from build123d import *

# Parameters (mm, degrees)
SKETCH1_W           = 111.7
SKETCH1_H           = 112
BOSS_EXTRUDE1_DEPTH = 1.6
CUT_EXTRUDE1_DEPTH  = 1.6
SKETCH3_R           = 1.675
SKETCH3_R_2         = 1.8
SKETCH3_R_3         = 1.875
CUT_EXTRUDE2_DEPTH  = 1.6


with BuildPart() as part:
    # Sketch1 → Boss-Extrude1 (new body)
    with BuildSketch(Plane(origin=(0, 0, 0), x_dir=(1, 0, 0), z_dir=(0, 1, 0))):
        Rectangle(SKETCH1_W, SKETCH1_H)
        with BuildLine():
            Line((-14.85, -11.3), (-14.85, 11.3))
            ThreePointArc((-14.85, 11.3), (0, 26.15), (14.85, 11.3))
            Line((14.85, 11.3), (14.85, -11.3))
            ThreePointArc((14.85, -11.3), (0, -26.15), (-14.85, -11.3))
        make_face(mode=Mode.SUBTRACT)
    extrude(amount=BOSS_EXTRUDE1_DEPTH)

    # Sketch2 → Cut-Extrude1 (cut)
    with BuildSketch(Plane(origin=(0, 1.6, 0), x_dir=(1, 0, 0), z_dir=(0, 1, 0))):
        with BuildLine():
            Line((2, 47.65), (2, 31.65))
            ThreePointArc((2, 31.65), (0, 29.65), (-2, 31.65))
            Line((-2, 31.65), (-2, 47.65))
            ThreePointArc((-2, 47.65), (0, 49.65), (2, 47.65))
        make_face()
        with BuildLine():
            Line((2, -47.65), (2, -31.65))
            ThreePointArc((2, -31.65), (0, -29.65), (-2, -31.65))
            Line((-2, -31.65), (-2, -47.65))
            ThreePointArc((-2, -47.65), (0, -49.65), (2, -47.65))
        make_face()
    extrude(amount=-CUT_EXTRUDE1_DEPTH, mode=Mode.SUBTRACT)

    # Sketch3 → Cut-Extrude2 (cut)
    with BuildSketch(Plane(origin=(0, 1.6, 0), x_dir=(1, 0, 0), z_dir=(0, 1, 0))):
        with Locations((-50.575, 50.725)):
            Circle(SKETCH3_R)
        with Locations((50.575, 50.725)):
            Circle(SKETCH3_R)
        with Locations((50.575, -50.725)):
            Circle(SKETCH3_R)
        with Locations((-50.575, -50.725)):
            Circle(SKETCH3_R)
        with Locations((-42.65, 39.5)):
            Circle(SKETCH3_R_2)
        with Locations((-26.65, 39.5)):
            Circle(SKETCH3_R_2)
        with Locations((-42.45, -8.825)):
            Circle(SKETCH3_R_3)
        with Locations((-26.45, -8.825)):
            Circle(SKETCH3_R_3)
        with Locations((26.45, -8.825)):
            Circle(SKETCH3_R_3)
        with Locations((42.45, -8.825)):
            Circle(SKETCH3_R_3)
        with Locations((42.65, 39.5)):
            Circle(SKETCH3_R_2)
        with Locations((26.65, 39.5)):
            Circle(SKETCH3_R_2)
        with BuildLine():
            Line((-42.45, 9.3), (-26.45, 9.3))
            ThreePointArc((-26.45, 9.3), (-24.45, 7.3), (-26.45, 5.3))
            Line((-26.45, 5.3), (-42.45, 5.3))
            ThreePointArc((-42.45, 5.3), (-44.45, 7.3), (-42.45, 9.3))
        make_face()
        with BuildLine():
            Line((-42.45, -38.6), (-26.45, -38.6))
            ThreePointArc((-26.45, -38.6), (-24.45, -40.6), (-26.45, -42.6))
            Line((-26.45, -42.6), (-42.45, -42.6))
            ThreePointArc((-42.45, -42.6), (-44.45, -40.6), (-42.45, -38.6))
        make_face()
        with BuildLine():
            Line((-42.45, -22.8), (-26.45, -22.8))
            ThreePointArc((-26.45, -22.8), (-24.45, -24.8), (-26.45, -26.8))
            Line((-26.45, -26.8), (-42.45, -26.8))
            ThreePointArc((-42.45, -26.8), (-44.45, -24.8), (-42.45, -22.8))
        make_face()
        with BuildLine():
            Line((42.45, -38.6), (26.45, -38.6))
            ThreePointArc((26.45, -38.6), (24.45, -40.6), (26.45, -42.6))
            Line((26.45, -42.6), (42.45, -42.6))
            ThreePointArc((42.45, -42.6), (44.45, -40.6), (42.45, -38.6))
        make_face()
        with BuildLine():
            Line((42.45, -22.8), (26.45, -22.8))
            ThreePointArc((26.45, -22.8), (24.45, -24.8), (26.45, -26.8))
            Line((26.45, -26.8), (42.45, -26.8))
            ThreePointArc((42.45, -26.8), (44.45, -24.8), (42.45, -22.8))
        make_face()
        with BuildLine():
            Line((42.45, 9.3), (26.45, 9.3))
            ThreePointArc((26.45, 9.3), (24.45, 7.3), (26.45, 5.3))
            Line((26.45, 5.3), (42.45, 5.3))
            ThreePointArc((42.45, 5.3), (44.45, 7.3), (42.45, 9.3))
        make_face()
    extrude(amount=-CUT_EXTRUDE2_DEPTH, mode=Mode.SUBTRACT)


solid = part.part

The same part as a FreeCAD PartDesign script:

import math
import FreeCAD as App
import Part
import Sketcher
from FreeCAD import Vector


def add_polygon(sketch, points):
    """Adds a closed chain of lines whose ends are joined by coincident constraints."""
    first, n = sketch.GeometryCount, len(points)
    for a, b in zip(points, points[1:] + points[:1]):
        sketch.addGeometry(Part.LineSegment(App.Vector(*a, 0), App.Vector(*b, 0)), False)
    for i in range(n):
        sketch.addConstraint(Sketcher.Constraint("Coincident", first + i, 2, first + (i + 1) % n, 1))

doc = App.newDocument("Part")
body = doc.addObject("PartDesign::Body", "Body")

# Sketch on XZ plane
sketch1 = body.newObject("Sketcher::SketchObject", "Sketch")
sketch1.AttachmentSupport = (doc.getObject("XZ_Plane"), [""])
sketch1.MapMode = "FlatFace"
add_polygon(sketch1, [(-56, -56), (-56, 56), (56, 56), (56, -56)])  # lines 0-3
sketch1.addGeometry(Part.ArcOfCircle(Part.Circle(Vector(0, 11, 0), Vector(0, 0, 1), 15), math.radians(0), math.radians(180)), False)  # 4
sketch1.addGeometry(Part.LineSegment(Vector(-15, 11, 0), Vector(-15, -11, 0)), False)  # 5
sketch1.addGeometry(Part.ArcOfCircle(Part.Circle(Vector(0, -11, 0), Vector(0, 0, 1), 15), math.radians(180), math.radians(360)), False)  # 6
sketch1.addGeometry(Part.LineSegment(Vector(15, -11, 0), Vector(15, 11, 0)), False)  # 7
sketch1.addConstraint(Sketcher.Constraint("Tangent", 4, 2, 5, 1))
sketch1.addConstraint(Sketcher.Constraint("Tangent", 5, 2, 6, 1))
sketch1.addConstraint(Sketcher.Constraint("Tangent", 6, 2, 7, 1))
sketch1.addConstraint(Sketcher.Constraint("Tangent", 7, 2, 4, 1))
sketch1.addConstraint(Sketcher.Constraint("Vertical", 0))
sketch1.addConstraint(Sketcher.Constraint("Horizontal", 1))
sketch1.addConstraint(Sketcher.Constraint("Vertical", 2))
sketch1.addConstraint(Sketcher.Constraint("Horizontal", 3))
sketch1.addConstraint(Sketcher.Constraint("Vertical", 5))
sketch1.addConstraint(Sketcher.Constraint("Vertical", 7))
sketch1.addConstraint(Sketcher.Constraint("Symmetric", 4, 3, 6, 3, -1, 1))
sketch1.addConstraint(Sketcher.Constraint("Symmetric", 0, 2, 2, 2, -1, 1))
sketch1.addConstraint(Sketcher.Constraint("DistanceY", 0, 1, 0, 2, 112.0))
sketch1.addConstraint(Sketcher.Constraint("Radius", 4, 14.85))
sketch1.addConstraint(Sketcher.Constraint("DistanceX", 1, 1, 1, 2, 111.7))
sketch1.addConstraint(Sketcher.Constraint("DistanceY", 5, 2, 5, 1, 22.6))
pad1 = body.newObject("PartDesign::Pad", "Pad")
pad1.Profile = sketch1
pad1.Length = 1.6
pad1.Reversed = True

# Sketch on XZ plane
sketch2 = body.newObject("Sketcher::SketchObject", "Sketch001")
sketch2.AttachmentSupport = (doc.getObject("XZ_Plane"), [""])
sketch2.MapMode = "FlatFace"
sketch2.AttachmentOffset = App.Placement(Vector(0, 0, -1.6), App.Rotation())
sketch2.addGeometry(Part.LineSegment(Vector(2, -31.6, 0), Vector(2, -47.6, 0)), False)
sketch2.addGeometry(Part.ArcOfCircle(Part.Circle(Vector(0, -47.6, 0), Vector(0, 0, 1), 2), math.radians(180), math.radians(360)), False)
sketch2.addGeometry(Part.LineSegment(Vector(-2, -47.6, 0), Vector(-2, -31.6, 0)), False)
sketch2.addGeometry(Part.ArcOfCircle(Part.Circle(Vector(0, -31.6, 0), Vector(0, 0, 1), 2), math.radians(0), math.radians(180)), False)
sketch2.addGeometry(Part.LineSegment(Vector(2, 47.6, 0), Vector(2, 31.6, 0)), False)
sketch2.addGeometry(Part.ArcOfCircle(Part.Circle(Vector(0, 31.6, 0), Vector(0, 0, 1), 2), math.radians(180), math.radians(360)), False)
sketch2.addGeometry(Part.LineSegment(Vector(-2, 31.6, 0), Vector(-2, 47.6, 0)), False)
sketch2.addGeometry(Part.ArcOfCircle(Part.Circle(Vector(0, 47.6, 0), Vector(0, 0, 1), 2), math.radians(0), math.radians(180)), False)
sketch2.addConstraint(Sketcher.Constraint("Tangent", 0, 2, 1, 2))
sketch2.addConstraint(Sketcher.Constraint("Tangent", 1, 1, 2, 1))
sketch2.addConstraint(Sketcher.Constraint("Tangent", 2, 2, 3, 2))
sketch2.addConstraint(Sketcher.Constraint("Tangent", 3, 1, 0, 1))
sketch2.addConstraint(Sketcher.Constraint("Tangent", 4, 2, 5, 2))
sketch2.addConstraint(Sketcher.Constraint("Tangent", 5, 1, 6, 1))
sketch2.addConstraint(Sketcher.Constraint("Tangent", 6, 2, 7, 2))
sketch2.addConstraint(Sketcher.Constraint("Tangent", 7, 1, 4, 1))
sketch2.addConstraint(Sketcher.Constraint("Vertical", 0))
sketch2.addConstraint(Sketcher.Constraint("Vertical", 2))
sketch2.addConstraint(Sketcher.Constraint("Vertical", 4))
sketch2.addConstraint(Sketcher.Constraint("Vertical", 6))
sketch2.addConstraint(Sketcher.Constraint("Equal", 3, 5))
sketch2.addConstraint(Sketcher.Constraint("Symmetric", 3, 3, 5, 3, -1, 1))
sketch2.addConstraint(Sketcher.Constraint("Symmetric", 1, 3, 7, 3, -1))
sketch2.addConstraint(Sketcher.Constraint("Radius", 1, 2.0))
sketch2.addConstraint(Sketcher.Constraint("DistanceY", 0, 2, 0, 1, 16.0))
sketch2.addConstraint(Sketcher.Constraint("DistanceY", 3, 3, 5, 3, 63.3))
pocket1 = body.newObject("PartDesign::Pocket", "Pocket")
pocket1.Profile = sketch2
pocket1.Length = 1.6
pocket1.Reversed = True

# Sketch on XZ plane
sketch3 = body.newObject("Sketcher::SketchObject", "Sketch002")
sketch3.AttachmentSupport = (doc.getObject("XZ_Plane"), [""])
sketch3.MapMode = "FlatFace"
sketch3.AttachmentOffset = App.Placement(Vector(0, 0, -1.6), App.Rotation())
sketch3.addGeometry(Part.Circle(Vector(-50.6, -50.7, 0), Vector(0, 0, 1), 1.7), False)
sketch3.addGeometry(Part.Circle(Vector(50.6, -50.7, 0), Vector(0, 0, 1), 1.7), False)
sketch3.addGeometry(Part.Circle(Vector(50.6, 50.7, 0), Vector(0, 0, 1), 1.7), False)
sketch3.addGeometry(Part.Circle(Vector(-50.6, 50.7, 0), Vector(0, 0, 1), 1.7), False)
sketch3.addGeometry(Part.Circle(Vector(-42.6, -39.5, 0), Vector(0, 0, 1), 1.8), False)
sketch3.addGeometry(Part.Circle(Vector(-26.6, -39.5, 0), Vector(0, 0, 1), 1.8), False)
sketch3.addGeometry(Part.Circle(Vector(-42.5, 8.8, 0), Vector(0, 0, 1), 1.9), False)
sketch3.addGeometry(Part.Circle(Vector(-26.4, 8.8, 0), Vector(0, 0, 1), 1.9), False)
sketch3.addGeometry(Part.Circle(Vector(26.4, 8.8, 0), Vector(0, 0, 1), 1.9), False)
sketch3.addGeometry(Part.Circle(Vector(42.5, 8.8, 0), Vector(0, 0, 1), 1.9), False)
sketch3.addGeometry(Part.Circle(Vector(42.6, -39.5, 0), Vector(0, 0, 1), 1.8), False)
sketch3.addGeometry(Part.Circle(Vector(26.6, -39.5, 0), Vector(0, 0, 1), 1.8), False)
sketch3.addGeometry(Part.LineSegment(Vector(-26.4, -9.3, 0), Vector(-42.5, -9.3, 0)), False)
sketch3.addGeometry(Part.ArcOfCircle(Part.Circle(Vector(-42.5, -7.3, 0), Vector(0, 0, 1), 2), math.radians(90), math.radians(270)), False)
sketch3.addGeometry(Part.LineSegment(Vector(-42.5, -5.3, 0), Vector(-26.4, -5.3, 0)), False)
sketch3.addGeometry(Part.ArcOfCircle(Part.Circle(Vector(-26.4, -7.3, 0), Vector(0, 0, 1), 2), math.radians(-90), math.radians(90)), False)
sketch3.addGeometry(Part.LineSegment(Vector(-26.4, 38.6, 0), Vector(-42.5, 38.6, 0)), False)
sketch3.addGeometry(Part.ArcOfCircle(Part.Circle(Vector(-42.5, 40.6, 0), Vector(0, 0, 1), 2), math.radians(90), math.radians(270)), False)
sketch3.addGeometry(Part.LineSegment(Vector(-42.5, 42.6, 0), Vector(-26.4, 42.6, 0)), False)
sketch3.addGeometry(Part.ArcOfCircle(Part.Circle(Vector(-26.4, 40.6, 0), Vector(0, 0, 1), 2), math.radians(-90), math.radians(90)), False)
sketch3.addGeometry(Part.LineSegment(Vector(-26.4, 22.8, 0), Vector(-42.5, 22.8, 0)), False)
sketch3.addGeometry(Part.ArcOfCircle(Part.Circle(Vector(-42.5, 24.8, 0), Vector(0, 0, 1), 2), math.radians(90), math.radians(270)), False)
sketch3.addGeometry(Part.LineSegment(Vector(-42.5, 26.8, 0), Vector(-26.4, 26.8, 0)), False)
sketch3.addGeometry(Part.ArcOfCircle(Part.Circle(Vector(-26.4, 24.8, 0), Vector(0, 0, 1), 2), math.radians(-90), math.radians(90)), False)
sketch3.addGeometry(Part.LineSegment(Vector(42.5, 38.6, 0), Vector(26.4, 38.6, 0)), False)
sketch3.addGeometry(Part.ArcOfCircle(Part.Circle(Vector(26.4, 40.6, 0), Vector(0, 0, 1), 2), math.radians(90), math.radians(270)), False)
sketch3.addGeometry(Part.LineSegment(Vector(26.4, 42.6, 0), Vector(42.5, 42.6, 0)), False)
sketch3.addGeometry(Part.ArcOfCircle(Part.Circle(Vector(42.5, 40.6, 0), Vector(0, 0, 1), 2), math.radians(-90), math.radians(90)), False)
sketch3.addGeometry(Part.LineSegment(Vector(42.5, 22.8, 0), Vector(26.4, 22.8, 0)), False)
sketch3.addGeometry(Part.ArcOfCircle(Part.Circle(Vector(26.4, 24.8, 0), Vector(0, 0, 1), 2), math.radians(90), math.radians(270)), False)
sketch3.addGeometry(Part.LineSegment(Vector(26.4, 26.8, 0), Vector(42.5, 26.8, 0)), False)
sketch3.addGeometry(Part.ArcOfCircle(Part.Circle(Vector(42.5, 24.8, 0), Vector(0, 0, 1), 2), math.radians(-90), math.radians(90)), False)
sketch3.addGeometry(Part.LineSegment(Vector(42.5, -9.3, 0), Vector(26.4, -9.3, 0)), False)
sketch3.addGeometry(Part.ArcOfCircle(Part.Circle(Vector(26.4, -7.3, 0), Vector(0, 0, 1), 2), math.radians(90), math.radians(270)), False)
sketch3.addGeometry(Part.LineSegment(Vector(26.4, -5.3, 0), Vector(42.5, -5.3, 0)), False)
sketch3.addGeometry(Part.ArcOfCircle(Part.Circle(Vector(42.5, -7.3, 0), Vector(0, 0, 1), 2), math.radians(-90), math.radians(90)), False)
sketch3.addConstraint(Sketcher.Constraint("Tangent", 12, 2, 13, 2))
sketch3.addConstraint(Sketcher.Constraint("Tangent", 13, 1, 14, 1))
sketch3.addConstraint(Sketcher.Constraint("Tangent", 14, 2, 15, 2))
sketch3.addConstraint(Sketcher.Constraint("Tangent", 15, 1, 12, 1))
sketch3.addConstraint(Sketcher.Constraint("Tangent", 16, 2, 17, 2))
sketch3.addConstraint(Sketcher.Constraint("Tangent", 17, 1, 18, 1))
sketch3.addConstraint(Sketcher.Constraint("Tangent", 18, 2, 19, 2))
sketch3.addConstraint(Sketcher.Constraint("Tangent", 19, 1, 16, 1))
sketch3.addConstraint(Sketcher.Constraint("Tangent", 20, 2, 21, 2))
sketch3.addConstraint(Sketcher.Constraint("Tangent", 21, 1, 22, 1))
sketch3.addConstraint(Sketcher.Constraint("Tangent", 22, 2, 23, 2))
sketch3.addConstraint(Sketcher.Constraint("Tangent", 23, 1, 20, 1))
sketch3.addConstraint(Sketcher.Constraint("Tangent", 24, 2, 25, 2))
sketch3.addConstraint(Sketcher.Constraint("Tangent", 25, 1, 26, 1))
sketch3.addConstraint(Sketcher.Constraint("Tangent", 26, 2, 27, 2))
sketch3.addConstraint(Sketcher.Constraint("Tangent", 27, 1, 24, 1))
sketch3.addConstraint(Sketcher.Constraint("Tangent", 28, 2, 29, 2))
sketch3.addConstraint(Sketcher.Constraint("Tangent", 29, 1, 30, 1))
sketch3.addConstraint(Sketcher.Constraint("Tangent", 30, 2, 31, 2))
sketch3.addConstraint(Sketcher.Constraint("Tangent", 31, 1, 28, 1))
sketch3.addConstraint(Sketcher.Constraint("Tangent", 32, 2, 33, 2))
sketch3.addConstraint(Sketcher.Constraint("Tangent", 33, 1, 34, 1))
sketch3.addConstraint(Sketcher.Constraint("Tangent", 34, 2, 35, 2))
sketch3.addConstraint(Sketcher.Constraint("Tangent", 35, 1, 32, 1))
sketch3.addConstraint(Sketcher.Constraint("Horizontal", 12))
sketch3.addConstraint(Sketcher.Constraint("Horizontal", 14))
sketch3.addConstraint(Sketcher.Constraint("Horizontal", 16))
sketch3.addConstraint(Sketcher.Constraint("Horizontal", 18))
sketch3.addConstraint(Sketcher.Constraint("Horizontal", 20))
sketch3.addConstraint(Sketcher.Constraint("Horizontal", 22))
sketch3.addConstraint(Sketcher.Constraint("Horizontal", 24))
sketch3.addConstraint(Sketcher.Constraint("Horizontal", 26))
sketch3.addConstraint(Sketcher.Constraint("Horizontal", 28))
sketch3.addConstraint(Sketcher.Constraint("Horizontal", 30))
sketch3.addConstraint(Sketcher.Constraint("Horizontal", 32))
sketch3.addConstraint(Sketcher.Constraint("Horizontal", 34))
sketch3.addConstraint(Sketcher.Constraint("Equal", 0, 1))
sketch3.addConstraint(Sketcher.Constraint("Equal", 1, 2))
sketch3.addConstraint(Sketcher.Constraint("Equal", 2, 3))
sketch3.addConstraint(Sketcher.Constraint("Equal", 4, 5))
sketch3.addConstraint(Sketcher.Constraint("Equal", 6, 7))
sketch3.addConstraint(Sketcher.Constraint("Equal", 7, 8))
sketch3.addConstraint(Sketcher.Constraint("Equal", 8, 9))
sketch3.addConstraint(Sketcher.Constraint("Equal", 5, 10))
sketch3.addConstraint(Sketcher.Constraint("Equal", 10, 11))
sketch3.addConstraint(Sketcher.Constraint("Equal", 15, 17))
sketch3.addConstraint(Sketcher.Constraint("Equal", 19, 21))
sketch3.addConstraint(Sketcher.Constraint("Equal", 23, 25))
sketch3.addConstraint(Sketcher.Constraint("Equal", 27, 29))
sketch3.addConstraint(Sketcher.Constraint("Equal", 31, 33))
sketch3.addConstraint(Sketcher.Constraint("Symmetric", 0, 3, 2, 3, -1, 1))
sketch3.addConstraint(Sketcher.Constraint("Symmetric", 1, 3, 3, 3, -1, 1))
sketch3.addConstraint(Sketcher.Constraint("Symmetric", 0, 3, 1, 3, -2))
sketch3.addConstraint(Sketcher.Constraint("Symmetric", 7, 3, 8, 3, -2))
sketch3.addConstraint(Sketcher.Constraint("Symmetric", 6, 3, 9, 3, -2))
sketch3.addConstraint(Sketcher.Constraint("Symmetric", 4, 3, 10, 3, -2))
sketch3.addConstraint(Sketcher.Constraint("Symmetric", 5, 3, 11, 3, -2))
sketch3.addConstraint(Sketcher.Constraint("Symmetric", 19, 3, 25, 3, -2))
sketch3.addConstraint(Sketcher.Constraint("Symmetric", 23, 3, 29, 3, -2))
sketch3.addConstraint(Sketcher.Constraint("Symmetric", 15, 3, 33, 3, -2))
sketch3.addConstraint(Sketcher.Constraint("Horizontal", 4, 3, 5, 3))
sketch3.addConstraint(Sketcher.Constraint("Horizontal", 6, 3, 7, 3))
sketch3.addConstraint(Sketcher.Constraint("Vertical", 6, 3, 13, 3))
sketch3.addConstraint(Sketcher.Constraint("Vertical", 7, 3, 15, 3))
sketch3.addConstraint(Sketcher.Constraint("Vertical", 13, 3, 17, 3))
sketch3.addConstraint(Sketcher.Constraint("Vertical", 15, 3, 19, 3))
sketch3.addConstraint(Sketcher.Constraint("Vertical", 17, 3, 21, 3))
sketch3.addConstraint(Sketcher.Constraint("Vertical", 19, 3, 23, 3))
sketch3.addConstraint(Sketcher.Constraint("Vertical", 9, 3, 27, 3))
sketch3.addConstraint(Sketcher.Constraint("Vertical", 27, 3, 31, 3))
sketch3.addConstraint(Sketcher.Constraint("Vertical", 31, 3, 35, 3))
sketch3.addConstraint(Sketcher.Constraint("Radius", 13, 2.0))
sketch3.addConstraint(Sketcher.Constraint("Diameter", 4, 3.6))
sketch3.addConstraint(Sketcher.Constraint("Diameter", 0, 3.35))
sketch3.addConstraint(Sketcher.Constraint("Diameter", 6, 3.75))
sketch3.addConstraint(Sketcher.Constraint("DistanceX", 12, 2, 12, 1, 16.0))
sketch3.addConstraint(Sketcher.Constraint("DistanceX", 4, 3, 5, 3, 16.0))
sketch3.addConstraint(Sketcher.Constraint("DistanceY", 4, 3, -1, 1, 39.5))
sketch3.addConstraint(Sketcher.Constraint("DistanceY", 13, 3, -1, 1, 7.3))
sketch3.addConstraint(Sketcher.Constraint("DistanceY", -1, 1, 17, 3, 40.6))
sketch3.addConstraint(Sketcher.Constraint("DistanceY", -1, 1, 21, 3, 24.8))
sketch3.addConstraint(Sketcher.Constraint("DistanceY", 6, 3, 3, 3, 41.9))
sketch3.addConstraint(Sketcher.Constraint("DistanceX", 4, 3, 6, 3, 0.2))
sketch3.addConstraint(Sketcher.Constraint("DistanceX", 7, 3, 8, 3, 52.9))
sketch3.addConstraint(Sketcher.Constraint("DistanceX", 0, 3, 1, 3, 101.15))
sketch3.addConstraint(Sketcher.Constraint("DistanceY", 1, 3, 2, 3, 101.45))
pocket2 = body.newObject("PartDesign::Pocket", "Pocket001")
pocket2.Profile = sketch3
pocket2.Length = 1.6
pocket2.Reversed = True

doc.recompute()
